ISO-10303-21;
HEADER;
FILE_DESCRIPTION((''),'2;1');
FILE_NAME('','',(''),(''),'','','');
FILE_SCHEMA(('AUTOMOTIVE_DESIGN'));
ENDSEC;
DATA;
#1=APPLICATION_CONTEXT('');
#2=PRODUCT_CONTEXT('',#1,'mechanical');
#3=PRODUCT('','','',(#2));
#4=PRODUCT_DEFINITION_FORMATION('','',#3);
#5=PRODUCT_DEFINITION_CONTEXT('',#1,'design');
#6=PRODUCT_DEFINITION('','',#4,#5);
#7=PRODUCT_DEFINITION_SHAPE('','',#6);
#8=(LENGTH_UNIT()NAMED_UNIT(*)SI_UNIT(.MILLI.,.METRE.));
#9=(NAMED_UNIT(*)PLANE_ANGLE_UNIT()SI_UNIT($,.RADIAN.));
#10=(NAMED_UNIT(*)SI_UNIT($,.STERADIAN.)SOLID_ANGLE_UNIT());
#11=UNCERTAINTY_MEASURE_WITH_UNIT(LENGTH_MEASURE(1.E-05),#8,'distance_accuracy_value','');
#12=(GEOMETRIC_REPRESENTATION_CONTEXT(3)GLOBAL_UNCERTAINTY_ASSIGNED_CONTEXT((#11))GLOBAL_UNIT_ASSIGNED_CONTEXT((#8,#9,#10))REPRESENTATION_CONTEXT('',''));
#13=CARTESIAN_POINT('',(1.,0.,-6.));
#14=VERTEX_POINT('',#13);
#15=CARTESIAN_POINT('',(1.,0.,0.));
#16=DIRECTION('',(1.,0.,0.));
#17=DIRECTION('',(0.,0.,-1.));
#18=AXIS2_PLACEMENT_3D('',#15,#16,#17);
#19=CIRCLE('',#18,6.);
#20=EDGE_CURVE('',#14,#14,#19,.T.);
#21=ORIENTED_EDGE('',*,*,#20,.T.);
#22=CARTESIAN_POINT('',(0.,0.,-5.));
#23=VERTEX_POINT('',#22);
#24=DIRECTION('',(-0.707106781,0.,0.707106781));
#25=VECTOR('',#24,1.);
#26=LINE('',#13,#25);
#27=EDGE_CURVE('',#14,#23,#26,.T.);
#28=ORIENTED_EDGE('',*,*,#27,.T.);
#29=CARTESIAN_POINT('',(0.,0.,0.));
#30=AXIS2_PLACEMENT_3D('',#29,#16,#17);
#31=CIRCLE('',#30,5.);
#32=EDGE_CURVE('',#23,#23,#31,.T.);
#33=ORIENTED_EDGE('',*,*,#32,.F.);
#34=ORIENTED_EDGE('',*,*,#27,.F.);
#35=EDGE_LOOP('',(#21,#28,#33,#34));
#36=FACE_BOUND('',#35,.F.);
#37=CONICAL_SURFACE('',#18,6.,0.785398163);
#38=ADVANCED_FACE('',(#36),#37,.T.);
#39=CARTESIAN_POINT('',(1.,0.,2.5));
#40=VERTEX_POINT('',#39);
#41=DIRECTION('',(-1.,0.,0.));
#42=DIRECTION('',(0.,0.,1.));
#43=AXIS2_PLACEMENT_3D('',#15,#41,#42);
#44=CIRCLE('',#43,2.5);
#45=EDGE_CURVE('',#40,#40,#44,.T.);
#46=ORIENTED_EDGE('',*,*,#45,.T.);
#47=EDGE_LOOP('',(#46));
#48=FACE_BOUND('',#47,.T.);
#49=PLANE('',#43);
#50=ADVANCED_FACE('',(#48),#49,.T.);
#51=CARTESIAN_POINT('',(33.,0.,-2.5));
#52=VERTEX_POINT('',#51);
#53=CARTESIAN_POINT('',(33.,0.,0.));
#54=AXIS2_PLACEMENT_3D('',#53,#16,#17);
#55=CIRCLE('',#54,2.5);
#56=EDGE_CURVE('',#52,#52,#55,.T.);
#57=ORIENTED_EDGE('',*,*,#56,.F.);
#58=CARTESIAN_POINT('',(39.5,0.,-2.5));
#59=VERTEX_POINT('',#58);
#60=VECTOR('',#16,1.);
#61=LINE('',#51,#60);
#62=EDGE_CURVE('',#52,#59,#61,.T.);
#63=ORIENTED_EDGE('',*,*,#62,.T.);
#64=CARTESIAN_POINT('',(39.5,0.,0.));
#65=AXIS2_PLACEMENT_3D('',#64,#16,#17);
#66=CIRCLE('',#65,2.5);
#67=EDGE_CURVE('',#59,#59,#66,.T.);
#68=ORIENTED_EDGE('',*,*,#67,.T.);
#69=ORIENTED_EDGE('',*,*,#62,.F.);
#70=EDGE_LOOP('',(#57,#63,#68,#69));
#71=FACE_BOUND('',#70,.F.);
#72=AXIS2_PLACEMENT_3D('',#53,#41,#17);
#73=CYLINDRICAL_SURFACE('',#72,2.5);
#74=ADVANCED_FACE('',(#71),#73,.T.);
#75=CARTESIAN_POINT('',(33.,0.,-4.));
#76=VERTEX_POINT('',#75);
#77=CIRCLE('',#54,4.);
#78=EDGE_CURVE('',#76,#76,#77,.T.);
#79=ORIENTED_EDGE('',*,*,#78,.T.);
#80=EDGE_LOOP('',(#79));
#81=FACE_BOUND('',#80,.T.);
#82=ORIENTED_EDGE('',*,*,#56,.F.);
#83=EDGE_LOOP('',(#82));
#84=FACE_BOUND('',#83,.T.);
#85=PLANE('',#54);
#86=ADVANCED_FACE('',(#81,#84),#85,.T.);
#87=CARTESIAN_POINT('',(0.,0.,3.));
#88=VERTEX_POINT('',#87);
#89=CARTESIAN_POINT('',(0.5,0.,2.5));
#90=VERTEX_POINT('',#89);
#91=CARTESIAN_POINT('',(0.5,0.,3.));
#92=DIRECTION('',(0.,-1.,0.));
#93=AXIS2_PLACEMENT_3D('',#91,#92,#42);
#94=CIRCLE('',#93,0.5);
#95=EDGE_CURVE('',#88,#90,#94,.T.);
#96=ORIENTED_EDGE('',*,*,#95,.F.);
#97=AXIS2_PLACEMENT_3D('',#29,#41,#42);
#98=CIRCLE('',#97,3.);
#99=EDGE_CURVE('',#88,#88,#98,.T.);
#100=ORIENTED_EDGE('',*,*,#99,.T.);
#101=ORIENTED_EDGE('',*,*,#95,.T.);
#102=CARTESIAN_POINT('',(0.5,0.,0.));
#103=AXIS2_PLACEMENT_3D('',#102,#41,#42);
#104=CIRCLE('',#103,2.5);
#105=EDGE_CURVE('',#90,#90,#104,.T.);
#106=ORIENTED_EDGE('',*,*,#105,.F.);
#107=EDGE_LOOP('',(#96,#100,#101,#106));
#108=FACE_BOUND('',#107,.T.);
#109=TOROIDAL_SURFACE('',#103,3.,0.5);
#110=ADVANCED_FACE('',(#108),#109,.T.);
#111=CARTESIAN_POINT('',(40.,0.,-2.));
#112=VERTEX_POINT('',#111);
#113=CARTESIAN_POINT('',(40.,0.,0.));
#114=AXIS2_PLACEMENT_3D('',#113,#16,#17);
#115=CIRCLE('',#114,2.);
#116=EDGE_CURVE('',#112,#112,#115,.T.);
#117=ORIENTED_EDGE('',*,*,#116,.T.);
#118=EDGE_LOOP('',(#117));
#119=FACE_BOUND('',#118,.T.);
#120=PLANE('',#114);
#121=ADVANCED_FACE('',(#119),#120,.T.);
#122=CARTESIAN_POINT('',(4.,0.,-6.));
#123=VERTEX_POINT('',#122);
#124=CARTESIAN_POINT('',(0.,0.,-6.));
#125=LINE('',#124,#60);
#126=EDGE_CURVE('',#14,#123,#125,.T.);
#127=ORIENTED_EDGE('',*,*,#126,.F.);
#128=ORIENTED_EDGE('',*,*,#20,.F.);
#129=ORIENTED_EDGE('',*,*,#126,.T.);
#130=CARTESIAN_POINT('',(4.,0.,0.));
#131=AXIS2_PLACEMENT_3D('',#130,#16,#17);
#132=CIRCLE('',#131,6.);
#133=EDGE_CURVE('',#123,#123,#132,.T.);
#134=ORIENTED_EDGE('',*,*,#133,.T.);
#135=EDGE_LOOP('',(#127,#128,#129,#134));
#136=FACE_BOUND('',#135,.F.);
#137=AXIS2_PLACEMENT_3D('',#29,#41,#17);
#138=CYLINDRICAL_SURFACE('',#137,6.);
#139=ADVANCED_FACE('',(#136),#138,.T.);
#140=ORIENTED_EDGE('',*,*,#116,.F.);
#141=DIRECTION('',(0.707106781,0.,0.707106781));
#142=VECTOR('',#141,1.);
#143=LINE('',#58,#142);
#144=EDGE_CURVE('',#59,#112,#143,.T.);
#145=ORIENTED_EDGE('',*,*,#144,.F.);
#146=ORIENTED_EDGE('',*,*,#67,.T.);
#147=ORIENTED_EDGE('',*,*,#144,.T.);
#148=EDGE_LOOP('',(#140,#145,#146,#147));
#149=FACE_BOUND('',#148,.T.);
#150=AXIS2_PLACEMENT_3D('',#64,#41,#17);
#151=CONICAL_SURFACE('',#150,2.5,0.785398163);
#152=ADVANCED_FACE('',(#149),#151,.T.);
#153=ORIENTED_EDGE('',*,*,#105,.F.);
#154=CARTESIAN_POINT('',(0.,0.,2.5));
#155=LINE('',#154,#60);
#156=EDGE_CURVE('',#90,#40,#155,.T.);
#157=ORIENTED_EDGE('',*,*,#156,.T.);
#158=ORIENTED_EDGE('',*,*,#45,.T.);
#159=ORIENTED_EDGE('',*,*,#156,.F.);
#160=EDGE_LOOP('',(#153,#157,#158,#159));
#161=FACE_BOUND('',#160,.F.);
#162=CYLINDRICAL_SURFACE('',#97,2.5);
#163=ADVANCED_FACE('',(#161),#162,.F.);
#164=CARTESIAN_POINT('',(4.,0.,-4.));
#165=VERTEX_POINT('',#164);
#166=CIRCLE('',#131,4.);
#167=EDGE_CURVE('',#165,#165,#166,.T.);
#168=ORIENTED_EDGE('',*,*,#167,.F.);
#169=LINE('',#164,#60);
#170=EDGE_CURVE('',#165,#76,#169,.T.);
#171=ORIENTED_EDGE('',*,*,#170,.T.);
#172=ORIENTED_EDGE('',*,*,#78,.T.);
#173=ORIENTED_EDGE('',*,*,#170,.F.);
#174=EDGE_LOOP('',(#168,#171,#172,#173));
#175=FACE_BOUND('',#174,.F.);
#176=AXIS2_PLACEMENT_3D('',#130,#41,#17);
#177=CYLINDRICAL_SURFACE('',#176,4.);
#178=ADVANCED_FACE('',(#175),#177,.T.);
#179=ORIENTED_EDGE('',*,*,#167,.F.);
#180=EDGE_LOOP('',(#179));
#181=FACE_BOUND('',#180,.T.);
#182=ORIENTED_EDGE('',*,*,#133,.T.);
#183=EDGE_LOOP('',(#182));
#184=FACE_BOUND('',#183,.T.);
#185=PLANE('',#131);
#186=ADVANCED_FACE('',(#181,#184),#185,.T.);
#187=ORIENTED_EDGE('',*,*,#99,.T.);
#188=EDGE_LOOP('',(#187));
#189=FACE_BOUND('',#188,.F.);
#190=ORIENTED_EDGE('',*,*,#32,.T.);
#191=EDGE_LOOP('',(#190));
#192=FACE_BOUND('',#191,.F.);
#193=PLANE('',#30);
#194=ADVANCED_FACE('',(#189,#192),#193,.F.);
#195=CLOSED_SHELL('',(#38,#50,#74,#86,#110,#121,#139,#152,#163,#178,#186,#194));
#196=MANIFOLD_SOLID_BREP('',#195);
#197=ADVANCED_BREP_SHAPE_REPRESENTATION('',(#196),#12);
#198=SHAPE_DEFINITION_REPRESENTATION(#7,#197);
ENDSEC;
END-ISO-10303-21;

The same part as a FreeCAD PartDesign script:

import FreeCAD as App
import Part
import Sketcher


def edges_at(feature, points):
    """Names of the edges that pass closest to the given points."""
    edges = feature.Shape.Edges
    near = lambda p: min(range(len(edges)), key=lambda i: edges[i].distToShape(Part.Vertex(*p))[0])
    return sorted({f"Edge{near(p) + 1}" for p in points})

doc = App.newDocument("Part")
params = doc.addObject("Spreadsheet::Sheet", "Params")
for row, (alias, value) in enumerate([
    ("sketch1_diameter", "12 mm"),
    ("pad1_length", "4 mm"),
    ("sketch2_diameter", "8 mm"),
    ("pad2_length", "29 mm"),
    ("sketch3_diameter", "5 mm"),
    ("pad3_length", "7 mm"),
    ("chamfer_size", "0.5 mm"),
    ("chamfer2_size", "1 mm"),
    ("sketch4_diameter", "5 mm"),
    ("pocket1_length", "1 mm"),
    ("fillet_radius", "0.5 mm"),
], start=1):
    params.set(f"A{row}", alias)
    params.set(f"B{row}", "=" + value)
    params.setAlias(f"B{row}", alias)

body = doc.addObject("PartDesign::Body", "Body")

# Sketch on YZ plane
sketch1 = body.newObject("Sketcher::SketchObject", "Sketch")
sketch1.AttachmentSupport = (doc.getObject("YZ_Plane"), [""])
sketch1.MapMode = "FlatFace"
sketch1.addGeometry(Part.Circle(App.Vector(0, 0, 0), App.Vector(0, 0, 1), 6), False)
sketch1.addConstraint([
    Sketcher.Constraint("Coincident", 0, 3, -1, 1),
    Sketcher.Constraint("Diameter", 0, 12.0),
])
sketch1.setExpression("Constraints[1]", "Params.sketch1_diameter")
pad1 = body.newObject("PartDesign::Pad", "Pad")
pad1.Profile = sketch1
pad1.setExpression("Length", "Params.pad1_length")

# Sketch on YZ plane
sketch2 = body.newObject("Sketcher::SketchObject", "Sketch001")
sketch2.AttachmentSupport = (doc.getObject("YZ_Plane"), [""])
sketch2.MapMode = "FlatFace"
sketch2.AttachmentOffset = App.Placement(App.Vector(0, 0, 4), App.Rotation())
sketch2.addGeometry(Part.Circle(App.Vector(0, 0, 0), App.Vector(0, 0, 1), 4), False)
sketch2.addConstraint([
    Sketcher.Constraint("Coincident", 0, 3, -1, 1),
    Sketcher.Constraint("Diameter", 0, 8.0),
])
sketch2.setExpression("Constraints[1]", "Params.sketch2_diameter")
pad2 = body.newObject("PartDesign::Pad", "Pad001")
pad2.Profile = sketch2
pad2.setExpression("Length", "Params.pad2_length")

# Sketch on YZ plane
sketch3 = body.newObject("Sketcher::SketchObject", "Sketch002")
sketch3.AttachmentSupport = (doc.getObject("YZ_Plane"), [""])
sketch3.MapMode = "FlatFace"
sketch3.AttachmentOffset = App.Placement(App.Vector(0, 0, 33), App.Rotation())
sketch3.addGeometry(Part.Circle(App.Vector(0, 0, 0), App.Vector(0, 0, 1), 2.5), False)
sketch3.addConstraint([
    Sketcher.Constraint("Coincident", 0, 3, -1, 1),
    Sketcher.Constraint("Diameter", 0, 5.0),
])
sketch3.setExpression("Constraints[1]", "Params.sketch3_diameter")
pad3 = body.newObject("PartDesign::Pad", "Pad002")
pad3.Profile = sketch3
pad3.setExpression("Length", "Params.pad3_length")
doc.recompute()

chamfer = body.newObject("PartDesign::Chamfer", "Chamfer")
chamfer.Base = (pad3, edges_at(pad3, [(40, 0, 2.5)]))
chamfer.setExpression("Size", "Params.chamfer_size")
doc.recompute()

chamfer2 = body.newObject("PartDesign::Chamfer", "Chamfer001")
chamfer2.Base = (chamfer, edges_at(chamfer, [(0, 0, 6)]))
chamfer2.setExpression("Size", "Params.chamfer2_size")

# Sketch on YZ plane
sketch4 = body.newObject("Sketcher::SketchObject", "Sketch003")
sketch4.AttachmentSupport = (doc.getObject("YZ_Plane"), [""])
sketch4.MapMode = "FlatFace"
sketch4.addGeometry(Part.Circle(App.Vector(0, 0, 0), App.Vector(0, 0, 1), 2.5), False)
sketch4.addConstraint([
    Sketcher.Constraint("Coincident", 0, 3, -1, 1),
    Sketcher.Constraint("Diameter", 0, 5.0),
])
sketch4.setExpression("Constraints[1]", "Params.sketch4_diameter")
pocket1 = body.newObject("PartDesign::Pocket", "Pocket")
pocket1.Profile = sketch4
pocket1.setExpression("Length", "Params.pocket1_length")
pocket1.Reversed = True
doc.recompute()

fillet = body.newObject("PartDesign::Fillet", "Fillet")
fillet.Base = (pocket1, edges_at(pocket1, [(0, 0, -2.5)]))
fillet.setExpression("Radius", "Params.fillet_radius")

doc.recompute()
